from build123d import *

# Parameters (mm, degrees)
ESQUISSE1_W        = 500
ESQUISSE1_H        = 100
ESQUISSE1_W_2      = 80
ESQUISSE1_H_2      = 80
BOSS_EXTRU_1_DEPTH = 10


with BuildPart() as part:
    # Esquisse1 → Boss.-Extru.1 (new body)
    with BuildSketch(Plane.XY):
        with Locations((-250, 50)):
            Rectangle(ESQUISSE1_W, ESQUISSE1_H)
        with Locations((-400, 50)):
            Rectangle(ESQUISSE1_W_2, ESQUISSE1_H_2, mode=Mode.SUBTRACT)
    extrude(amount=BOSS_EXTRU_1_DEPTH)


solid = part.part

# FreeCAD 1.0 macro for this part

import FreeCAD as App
import Part
import Sketcher

doc = App.newDocument("Part")
body = doc.addObject("PartDesign::Body", "Body")

# Sketch on XY plane
sketch1 = body.newObject("Sketcher::SketchObject", "Sketch")
sketch1.AttachmentSupport = (doc.getObject("XY_Plane"), [""])
sketch1.MapMode = "FlatFace"
sketch1.addGeometry(Part.LineSegment(App.Vector(-500, 100, 0), App.Vector(-500, 0, 0)), False)
sketch1.addGeometry(Part.LineSegment(App.Vector(-500, 0, 0), App.Vector(0, 0, 0)), False)
sketch1.addGeometry(Part.LineSegment(App.Vector(0, 0, 0), App.Vector(0, 100, 0)), False)
sketch1.addGeometry(Part.LineSegment(App.Vector(0, 100, 0), App.Vector(-500, 100, 0)), False)
sketch1.addGeometry(Part.LineSegment(App.Vector(-360, 10, 0), App.Vector(-440, 10, 0)), False)
sketch1.addGeometry(Part.LineSegment(App.Vector(-440, 10, 0), App.Vector(-440, 90, 0)), False)
sketch1.addGeometry(Part.LineSegment(App.Vector(-440, 90, 0), App.Vector(-360, 90, 0)), False)
sketch1.addGeometry(Part.LineSegment(App.Vector(-360, 90, 0), App.Vector(-360, 10, 0)), False)
sketch1.addConstraint(Sketcher.Constraint("Coincident", 0, 2, 1, 1))
sketch1.addConstraint(Sketcher.Constraint("Coincident", 1, 2, 2, 1))
sketch1.addConstraint(Sketcher.Constraint("Coincident", 2, 2, 3, 1))
sketch1.addConstraint(Sketcher.Constraint("Coincident", 3, 2, 0, 1))
sketch1.addConstraint(Sketcher.Constraint("Coincident", 4, 2, 5, 1))
sketch1.addConstraint(Sketcher.Constraint("Coincident", 5, 2, 6, 1))
sketch1.addConstraint(Sketcher.Constraint("Coincident", 6, 2, 7, 1))
sketch1.addConstraint(Sketcher.Constraint("Coincident", 7, 2, 4, 1))
sketch1.addConstraint(Sketcher.Constraint("Vertical", 0))
sketch1.addConstraint(Sketcher.Constraint("Horizontal", 1))
sketch1.addConstraint(Sketcher.Constraint("Vertical", 2))
sketch1.addConstraint(Sketcher.Constraint("Horizontal", 3))
sketch1.addConstraint(Sketcher.Constraint("Horizontal", 4))
sketch1.addConstraint(Sketcher.Constraint("Vertical", 5))
sketch1.addConstraint(Sketcher.Constraint("Horizontal", 6))
sketch1.addConstraint(Sketcher.Constraint("Vertical", 7))
sketch1.addConstraint(Sketcher.Constraint("Coincident", 1, 2, -1, 1))
sketch1.addConstraint(Sketcher.Constraint("Equal", 6, 5))
sketch1.addConstraint(Sketcher.Constraint("DistanceX", 1, 1, 1, 2, 500.0))
sketch1.addConstraint(Sketcher.Constraint("DistanceX", 4, 2, 4, 1, 80.0))
sketch1.addConstraint(Sketcher.Constraint("DistanceY", 0, 2, 0, 1, 100.0))
sketch1.addConstraint(Sketcher.Constraint("DistanceX", 4, 2, -1, 1, 440.0))
sketch1.addConstraint(Sketcher.Constraint("DistanceY", -1, 1, 4, 2, 10.0))
pad1 = body.newObject("PartDesign::Pad", "Pad")
pad1.Profile = sketch1
pad1.Length = 10

doc.recompute()
